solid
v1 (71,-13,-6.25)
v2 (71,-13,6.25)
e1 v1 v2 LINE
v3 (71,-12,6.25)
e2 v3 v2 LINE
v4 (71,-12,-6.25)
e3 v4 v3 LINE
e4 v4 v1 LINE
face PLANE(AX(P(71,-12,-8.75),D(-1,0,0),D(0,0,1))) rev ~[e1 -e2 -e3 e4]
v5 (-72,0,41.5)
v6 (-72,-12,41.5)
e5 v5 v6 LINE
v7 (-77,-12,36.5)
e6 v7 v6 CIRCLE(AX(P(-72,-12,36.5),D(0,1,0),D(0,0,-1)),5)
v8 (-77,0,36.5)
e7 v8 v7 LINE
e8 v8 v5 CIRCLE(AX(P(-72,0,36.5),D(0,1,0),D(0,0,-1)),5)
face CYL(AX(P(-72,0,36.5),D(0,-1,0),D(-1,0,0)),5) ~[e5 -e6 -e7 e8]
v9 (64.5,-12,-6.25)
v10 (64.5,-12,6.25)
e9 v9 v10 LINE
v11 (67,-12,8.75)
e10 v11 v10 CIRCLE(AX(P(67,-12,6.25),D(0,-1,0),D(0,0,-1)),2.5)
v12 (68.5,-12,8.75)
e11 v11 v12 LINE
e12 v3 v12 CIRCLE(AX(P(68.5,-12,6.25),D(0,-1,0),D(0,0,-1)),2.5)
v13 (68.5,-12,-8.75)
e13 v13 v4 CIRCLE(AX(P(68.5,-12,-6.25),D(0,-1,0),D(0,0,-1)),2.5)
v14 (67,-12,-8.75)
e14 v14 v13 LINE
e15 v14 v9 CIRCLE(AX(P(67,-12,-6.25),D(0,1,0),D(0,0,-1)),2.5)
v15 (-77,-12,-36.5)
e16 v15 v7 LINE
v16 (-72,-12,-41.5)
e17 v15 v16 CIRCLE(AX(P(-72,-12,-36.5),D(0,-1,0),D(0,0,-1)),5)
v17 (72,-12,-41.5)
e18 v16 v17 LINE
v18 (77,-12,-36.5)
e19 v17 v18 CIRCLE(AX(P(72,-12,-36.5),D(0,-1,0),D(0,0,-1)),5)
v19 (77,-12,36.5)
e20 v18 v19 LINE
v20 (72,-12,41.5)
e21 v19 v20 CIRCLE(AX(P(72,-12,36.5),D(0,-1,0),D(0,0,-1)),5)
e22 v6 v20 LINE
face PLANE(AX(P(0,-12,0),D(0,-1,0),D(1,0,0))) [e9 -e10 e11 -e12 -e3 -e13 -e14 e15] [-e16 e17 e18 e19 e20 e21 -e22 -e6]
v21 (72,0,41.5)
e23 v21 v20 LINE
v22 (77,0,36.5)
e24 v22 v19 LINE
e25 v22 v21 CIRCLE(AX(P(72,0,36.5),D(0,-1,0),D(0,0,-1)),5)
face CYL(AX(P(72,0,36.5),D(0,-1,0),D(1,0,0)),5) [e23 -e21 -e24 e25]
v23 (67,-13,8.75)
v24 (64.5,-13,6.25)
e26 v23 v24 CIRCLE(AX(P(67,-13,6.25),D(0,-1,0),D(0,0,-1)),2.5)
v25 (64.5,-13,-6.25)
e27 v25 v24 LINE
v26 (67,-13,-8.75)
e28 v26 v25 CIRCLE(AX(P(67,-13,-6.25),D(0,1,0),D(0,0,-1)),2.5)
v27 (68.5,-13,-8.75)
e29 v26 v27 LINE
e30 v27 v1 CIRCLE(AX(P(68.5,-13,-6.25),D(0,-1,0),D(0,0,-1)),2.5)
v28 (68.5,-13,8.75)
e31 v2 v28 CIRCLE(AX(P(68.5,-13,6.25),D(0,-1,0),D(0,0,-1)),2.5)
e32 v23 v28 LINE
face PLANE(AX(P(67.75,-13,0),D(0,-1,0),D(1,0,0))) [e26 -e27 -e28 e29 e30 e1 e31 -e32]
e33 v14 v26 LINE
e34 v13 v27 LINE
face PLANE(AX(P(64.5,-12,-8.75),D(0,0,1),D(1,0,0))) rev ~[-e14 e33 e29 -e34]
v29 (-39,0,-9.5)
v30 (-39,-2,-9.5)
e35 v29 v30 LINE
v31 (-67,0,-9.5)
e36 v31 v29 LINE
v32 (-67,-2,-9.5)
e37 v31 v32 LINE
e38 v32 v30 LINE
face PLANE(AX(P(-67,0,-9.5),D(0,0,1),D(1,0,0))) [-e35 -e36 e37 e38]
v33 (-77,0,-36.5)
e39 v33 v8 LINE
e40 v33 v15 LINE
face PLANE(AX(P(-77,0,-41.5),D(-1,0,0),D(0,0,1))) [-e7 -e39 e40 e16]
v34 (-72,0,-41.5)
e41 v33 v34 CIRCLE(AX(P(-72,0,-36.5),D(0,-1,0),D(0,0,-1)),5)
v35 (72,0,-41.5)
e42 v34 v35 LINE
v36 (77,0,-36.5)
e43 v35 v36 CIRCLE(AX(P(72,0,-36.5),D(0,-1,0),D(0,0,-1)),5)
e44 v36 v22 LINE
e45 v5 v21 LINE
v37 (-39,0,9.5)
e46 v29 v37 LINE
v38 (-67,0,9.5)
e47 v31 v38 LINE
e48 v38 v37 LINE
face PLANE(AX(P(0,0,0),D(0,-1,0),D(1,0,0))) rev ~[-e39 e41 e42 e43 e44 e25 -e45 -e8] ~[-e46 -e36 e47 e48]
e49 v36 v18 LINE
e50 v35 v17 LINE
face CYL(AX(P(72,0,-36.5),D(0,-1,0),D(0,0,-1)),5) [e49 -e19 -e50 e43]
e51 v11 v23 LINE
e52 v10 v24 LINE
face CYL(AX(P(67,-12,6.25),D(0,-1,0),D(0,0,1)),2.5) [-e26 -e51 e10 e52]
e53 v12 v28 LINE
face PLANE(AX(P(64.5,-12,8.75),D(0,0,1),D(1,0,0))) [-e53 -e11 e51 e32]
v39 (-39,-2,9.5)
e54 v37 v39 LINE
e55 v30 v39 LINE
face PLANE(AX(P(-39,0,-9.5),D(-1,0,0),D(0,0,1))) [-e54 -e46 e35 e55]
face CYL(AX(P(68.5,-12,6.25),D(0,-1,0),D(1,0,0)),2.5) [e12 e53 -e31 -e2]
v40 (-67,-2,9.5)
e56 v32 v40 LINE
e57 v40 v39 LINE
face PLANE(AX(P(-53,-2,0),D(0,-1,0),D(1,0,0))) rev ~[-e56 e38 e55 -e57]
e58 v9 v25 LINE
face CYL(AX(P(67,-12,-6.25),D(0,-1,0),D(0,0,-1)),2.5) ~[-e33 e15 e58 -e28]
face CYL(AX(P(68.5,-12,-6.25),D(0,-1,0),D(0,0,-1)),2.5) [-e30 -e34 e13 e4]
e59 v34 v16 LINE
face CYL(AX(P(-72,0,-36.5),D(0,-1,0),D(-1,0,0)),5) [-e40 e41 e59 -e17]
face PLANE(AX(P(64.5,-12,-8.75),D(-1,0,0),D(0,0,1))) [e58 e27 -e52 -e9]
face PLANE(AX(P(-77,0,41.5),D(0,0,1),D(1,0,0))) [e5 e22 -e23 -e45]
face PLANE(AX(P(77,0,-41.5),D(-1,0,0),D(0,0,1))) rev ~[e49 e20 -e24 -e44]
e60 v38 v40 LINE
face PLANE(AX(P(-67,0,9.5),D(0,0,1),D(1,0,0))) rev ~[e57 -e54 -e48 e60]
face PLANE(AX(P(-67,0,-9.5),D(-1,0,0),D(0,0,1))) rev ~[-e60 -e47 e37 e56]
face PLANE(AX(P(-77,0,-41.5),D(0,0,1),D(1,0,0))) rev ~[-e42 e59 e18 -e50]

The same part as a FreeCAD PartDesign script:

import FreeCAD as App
import Part
import Sketcher

V = App.Vector


def edges_at(feature, points):
    """Names of the edges that pass closest to the given points."""
    edges = feature.Shape.Edges
    near = lambda p: min(range(len(edges)), key=lambda i: edges[i].distToShape(Part.Vertex(*p))[0])
    return sorted({f"Edge{near(p) + 1}" for p in points})


def add_polygon(sketch, points):
    """Adds a closed chain of lines whose ends are joined by coincident constraints."""
    first, n = sketch.GeometryCount, len(points)
    for a, b in zip(points, points[1:] + points[:1]):
        sketch.addGeometry(Part.LineSegment(App.Vector(*a, 0), App.Vector(*b, 0)), False)
    for i in range(n):
        sketch.addConstraint(Sketcher.Constraint("Coincident", first + i, 2, first + (i + 1) % n, 1))

doc = App.newDocument("Part")
body = doc.addObject("PartDesign::Body", "Body")

# Sketch on XZ plane
sketch1 = doc.addObject("Sketcher::SketchObject", "Sketch")
body.addObject(sketch1)
sketch1.AttachmentSupport = (doc.XZ_Plane, [""])
sketch1.MapMode = "FlatFace"
add_polygon(sketch1, [(-77, 42), (-77, -42), (77, -42), (77, 42)])  # lines 0-3
sketch1.addConstraint(Sketcher.Constraint("Vertical", 0))
sketch1.addConstraint(Sketcher.Constraint("Horizontal", 1))
sketch1.addConstraint(Sketcher.Constraint("Vertical", 2))
sketch1.addConstraint(Sketcher.Constraint("Horizontal", 3))
sketch1.addConstraint(Sketcher.Constraint("Symmetric", 0, 2, 2, 2, -1, 1))
sketch1.addConstraint(Sketcher.Constraint("DistanceX", 1, 1, 1, 2, 154.0))
sketch1.addConstraint(Sketcher.Constraint("DistanceY", 0, 2, 0, 1, 83.0))
pad1 = doc.addObject("PartDesign::Pad", "Pad")
body.addObject(pad1)
pad1.Profile = sketch1
pad1.Length = 12
doc.recompute()

fillet = doc.addObject("PartDesign::Fillet", "Fillet")
body.addObject(fillet)
fillet.Base = (pad1, edges_at(pad1, [
    (-77, -6, 41.5),
    (77, -6, 41.5),
    (77, -6, -41.5),
    (-77, -6, -41.5),
]))
fillet.Radius = 5

# Sketch on XZ plane
sketch2 = doc.addObject("Sketcher::SketchObject", "Sketch001")
body.addObject(sketch2)
sketch2.AttachmentSupport = (doc.XZ_Plane, [""])
sketch2.MapMode = "FlatFace"
sketch2.AttachmentOffset = App.Placement(V(0, 0, 12), App.Rotation())
add_polygon(sketch2, [(64, 9), (64, -9), (71, -9), (71, 9)])  # lines 0-3
sketch2.addConstraint(Sketcher.Constraint("Vertical", 0))
sketch2.addConstraint(Sketcher.Constraint("Horizontal", 1))
sketch2.addConstraint(Sketcher.Constraint("Vertical", 2))
sketch2.addConstraint(Sketcher.Constraint("Horizontal", 3))
sketch2.addConstraint(Sketcher.Constraint("DistanceX", 1, 1, 1, 2, 6.5))
sketch2.addConstraint(Sketcher.Constraint("DistanceY", 0, 2, 0, 1, 17.5))
sketch2.addConstraint(Sketcher.Constraint("DistanceX", -1, 1, 1, 2, 71.0))
sketch2.addConstraint(Sketcher.Constraint("DistanceY", 0, 2, -1, 1, 8.75))
pad2 = doc.addObject("PartDesign::Pad", "Pad001")
body.addObject(pad2)
pad2.Profile = sketch2
pad2.Length = 1
doc.recompute()

fillet2 = doc.addObject("PartDesign::Fillet", "Fillet001")
body.addObject(fillet2)
fillet2.Base = (pad2, edges_at(pad2, [
    (71, -12.5, -8.75),
    (71, -12.5, 8.75),
    (64.5, -12.5, 8.75),
    (64.5, -12.5, -8.75),
]))
fillet2.Radius = 2.5

# Sketch on XZ plane
sketch3 = doc.addObject("Sketcher::SketchObject", "Sketch002")
body.addObject(sketch3)
sketch3.AttachmentSupport = (doc.XZ_Plane, [""])
sketch3.MapMode = "FlatFace"
add_polygon(sketch3, [(-67, 10), (-67, -10), (-39, -10), (-39, 10)])  # lines 0-3
sketch3.addConstraint(Sketcher.Constraint("Vertical", 0))
sketch3.addConstraint(Sketcher.Constraint("Horizontal", 1))
sketch3.addConstraint(Sketcher.Constraint("Vertical", 2))
sketch3.addConstraint(Sketcher.Constraint("Horizontal", 3))
sketch3.addConstraint(Sketcher.Constraint("DistanceX", 1, 1, 1, 2, 28.0))
sketch3.addConstraint(Sketcher.Constraint("DistanceY", 0, 2, 0, 1, 19.0))
sketch3.addConstraint(Sketcher.Constraint("DistanceX", 0, 2, -1, 1, 67.0))
sketch3.addConstraint(Sketcher.Constraint("DistanceY", 0, 2, -1, 1, 9.5))
pocket1 = doc.addObject("PartDesign::Pocket", "Pocket")
body.addObject(pocket1)
pocket1.Profile = sketch3
pocket1.Length = 2
pocket1.Reversed = True

doc.recompute()
